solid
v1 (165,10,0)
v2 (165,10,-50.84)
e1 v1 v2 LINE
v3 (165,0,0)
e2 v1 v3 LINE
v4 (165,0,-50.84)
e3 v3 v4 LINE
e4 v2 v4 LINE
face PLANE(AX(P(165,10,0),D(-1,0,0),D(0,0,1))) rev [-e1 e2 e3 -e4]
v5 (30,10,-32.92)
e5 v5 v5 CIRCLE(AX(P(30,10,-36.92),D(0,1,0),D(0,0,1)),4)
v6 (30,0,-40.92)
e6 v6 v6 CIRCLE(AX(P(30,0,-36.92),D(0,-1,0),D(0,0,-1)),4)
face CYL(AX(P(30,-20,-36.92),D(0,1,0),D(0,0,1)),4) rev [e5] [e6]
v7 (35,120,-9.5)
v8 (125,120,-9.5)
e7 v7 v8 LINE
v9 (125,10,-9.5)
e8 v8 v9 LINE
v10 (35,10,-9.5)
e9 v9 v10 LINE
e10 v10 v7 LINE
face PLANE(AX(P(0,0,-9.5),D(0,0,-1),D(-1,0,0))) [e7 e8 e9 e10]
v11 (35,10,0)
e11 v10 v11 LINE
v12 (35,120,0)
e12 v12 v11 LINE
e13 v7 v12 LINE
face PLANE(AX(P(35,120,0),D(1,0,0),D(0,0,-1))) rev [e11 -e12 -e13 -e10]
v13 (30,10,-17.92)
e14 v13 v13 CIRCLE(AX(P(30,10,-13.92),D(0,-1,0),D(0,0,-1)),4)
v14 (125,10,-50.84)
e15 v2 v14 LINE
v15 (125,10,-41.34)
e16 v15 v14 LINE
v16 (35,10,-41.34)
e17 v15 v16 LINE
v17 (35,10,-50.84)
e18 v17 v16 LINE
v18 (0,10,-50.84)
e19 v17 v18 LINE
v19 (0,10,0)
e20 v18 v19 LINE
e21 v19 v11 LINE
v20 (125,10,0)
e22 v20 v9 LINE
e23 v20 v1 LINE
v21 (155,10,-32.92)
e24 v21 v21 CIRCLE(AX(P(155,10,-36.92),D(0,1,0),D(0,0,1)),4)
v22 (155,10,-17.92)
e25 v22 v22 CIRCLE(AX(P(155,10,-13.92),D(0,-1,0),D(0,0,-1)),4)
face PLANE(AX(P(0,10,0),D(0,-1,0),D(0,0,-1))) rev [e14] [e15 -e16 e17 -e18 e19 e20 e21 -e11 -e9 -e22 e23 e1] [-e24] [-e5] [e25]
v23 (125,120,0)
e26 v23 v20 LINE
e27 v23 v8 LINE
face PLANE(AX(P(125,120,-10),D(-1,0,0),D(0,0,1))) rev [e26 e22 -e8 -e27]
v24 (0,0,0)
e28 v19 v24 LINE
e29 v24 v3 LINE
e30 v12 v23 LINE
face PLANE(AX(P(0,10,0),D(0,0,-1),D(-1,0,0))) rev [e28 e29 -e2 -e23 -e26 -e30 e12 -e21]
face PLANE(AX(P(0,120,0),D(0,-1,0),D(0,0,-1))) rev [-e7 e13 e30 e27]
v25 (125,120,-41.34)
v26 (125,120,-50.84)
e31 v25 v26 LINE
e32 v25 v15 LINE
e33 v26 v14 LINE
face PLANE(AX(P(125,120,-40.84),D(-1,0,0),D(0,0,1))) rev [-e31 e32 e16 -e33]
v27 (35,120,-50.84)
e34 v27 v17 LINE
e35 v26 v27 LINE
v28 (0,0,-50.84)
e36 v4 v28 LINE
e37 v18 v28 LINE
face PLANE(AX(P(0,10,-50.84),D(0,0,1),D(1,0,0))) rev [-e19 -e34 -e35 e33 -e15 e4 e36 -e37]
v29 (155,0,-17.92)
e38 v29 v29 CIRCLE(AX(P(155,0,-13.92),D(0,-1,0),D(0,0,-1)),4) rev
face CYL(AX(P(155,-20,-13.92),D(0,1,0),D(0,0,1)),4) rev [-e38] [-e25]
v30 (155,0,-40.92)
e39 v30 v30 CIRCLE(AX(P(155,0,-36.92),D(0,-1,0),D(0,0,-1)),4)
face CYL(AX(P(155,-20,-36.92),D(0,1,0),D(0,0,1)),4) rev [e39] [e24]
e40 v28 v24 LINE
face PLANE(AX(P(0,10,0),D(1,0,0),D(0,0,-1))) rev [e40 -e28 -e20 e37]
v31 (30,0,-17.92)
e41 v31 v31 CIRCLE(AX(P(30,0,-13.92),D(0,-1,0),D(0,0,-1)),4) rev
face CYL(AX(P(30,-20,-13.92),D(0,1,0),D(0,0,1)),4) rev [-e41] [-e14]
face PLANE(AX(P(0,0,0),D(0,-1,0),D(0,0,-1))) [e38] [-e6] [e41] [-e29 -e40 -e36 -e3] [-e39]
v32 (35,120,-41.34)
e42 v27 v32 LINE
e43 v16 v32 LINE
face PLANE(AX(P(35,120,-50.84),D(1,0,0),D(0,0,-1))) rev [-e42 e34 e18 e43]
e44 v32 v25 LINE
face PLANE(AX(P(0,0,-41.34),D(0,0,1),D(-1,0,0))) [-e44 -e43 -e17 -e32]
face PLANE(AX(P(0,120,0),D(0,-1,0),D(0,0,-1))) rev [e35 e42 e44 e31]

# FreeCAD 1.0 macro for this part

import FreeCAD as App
import Part
import Sketcher


def add_polygon(sketch, points):
    """Adds a closed chain of lines whose ends are joined by coincident constraints."""
    first, n = sketch.GeometryCount, len(points)
    for a, b in zip(points, points[1:] + points[:1]):
        sketch.addGeometry(Part.LineSegment(App.Vector(*a, 0), App.Vector(*b, 0)), False)
    for i in range(n):
        sketch.addConstraint(Sketcher.Constraint("Coincident", first + i, 2, first + (i + 1) % n, 1))

doc = App.newDocument("Part")
body = doc.addObject("PartDesign::Body", "Body")

# Sketch on XZ plane
sketch1 = body.newObject("Sketcher::SketchObject", "Sketch")
sketch1.AttachmentSupport = (doc.getObject("XZ_Plane"), [""])
sketch1.MapMode = "FlatFace"
add_polygon(sketch1, [(0, -51), (0, 0), (165, 0), (165, -51)])  # lines 0-3
sketch1.addConstraint(Sketcher.Constraint("Vertical", 0))
sketch1.addConstraint(Sketcher.Constraint("Horizontal", 1))
sketch1.addConstraint(Sketcher.Constraint("Vertical", 2))
sketch1.addConstraint(Sketcher.Constraint("Horizontal", 3))
sketch1.addConstraint(Sketcher.Constraint("Coincident", 0, 2, -1, 1))
sketch1.addConstraint(Sketcher.Constraint("DistanceX", 1, 1, 1, 2, 165.0))
sketch1.addConstraint(Sketcher.Constraint("DistanceY", 0, 1, 0, 2, 50.84))
pad1 = body.newObject("PartDesign::Pad", "Pad")
pad1.Profile = sketch1
pad1.Length = 10
pad1.Reversed = True

# Sketch on XZ plane
sketch2 = body.newObject("Sketcher::SketchObject", "Sketch001")
sketch2.AttachmentSupport = (doc.getObject("XZ_Plane"), [""])
sketch2.MapMode = "FlatFace"
sketch2.AttachmentOffset = App.Placement(App.Vector(0, 0, -10), App.Rotation())
add_polygon(sketch2, [(35, -51), (35, -41), (125, -41), (125, -51)])  # lines 0-3
add_polygon(sketch2, [(35, -10), (35, 0), (125, 0), (125, -10)])  # lines 4-7
sketch2.addConstraint(Sketcher.Constraint("Vertical", 0))
sketch2.addConstraint(Sketcher.Constraint("Horizontal", 1))
sketch2.addConstraint(Sketcher.Constraint("Vertical", 2))
sketch2.addConstraint(Sketcher.Constraint("Horizontal", 3))
sketch2.addConstraint(Sketcher.Constraint("Vertical", 4))
sketch2.addConstraint(Sketcher.Constraint("Horizontal", 5))
sketch2.addConstraint(Sketcher.Constraint("Vertical", 6))
sketch2.addConstraint(Sketcher.Constraint("Horizontal", 7))
sketch2.addConstraint(Sketcher.Constraint("PointOnObject", 4, 2, -1))
sketch2.addConstraint(Sketcher.Constraint("Vertical", 3, 2, 4, 2))
sketch2.addConstraint(Sketcher.Constraint("Vertical", 2, 2, 5, 2))
sketch2.addConstraint(Sketcher.Constraint("Equal", 2, 4))
sketch2.addConstraint(Sketcher.Constraint("DistanceX", 1, 1, 1, 2, 90.0))
sketch2.addConstraint(Sketcher.Constraint("DistanceY", 0, 1, 0, 2, 10.0))
sketch2.addConstraint(Sketcher.Constraint("DistanceX", -1, 1, 0, 2, 35.0))
sketch2.addConstraint(Sketcher.Constraint("DistanceY", 0, 2, -1, 1, 40.84))
pad2 = body.newObject("PartDesign::Pad", "Pad001")
pad2.Profile = sketch2
pad2.Length = 110
pad2.Reversed = True

# Sketch on XZ plane
sketch3 = body.newObject("Sketcher::SketchObject", "Sketch002")
sketch3.AttachmentSupport = (doc.getObject("XZ_Plane"), [""])
sketch3.MapMode = "FlatFace"
sketch3.AttachmentOffset = App.Placement(App.Vector(0, 0, -10), App.Rotation())
sketch3.addGeometry(Part.Circle(App.Vector(30, -36.9, 0), App.Vector(0, 0, 1), 4), False)
sketch3.addGeometry(Part.Circle(App.Vector(155, -36.9, 0), App.Vector(0, 0, 1), 4), False)
sketch3.addConstraint(Sketcher.Constraint("Equal", 0, 1))
sketch3.addConstraint(Sketcher.Constraint("Horizontal", 0, 3, 1, 3))
sketch3.addConstraint(Sketcher.Constraint("Diameter", 0, 8.0))
sketch3.addConstraint(Sketcher.Constraint("DistanceX", -1, 1, 0, 3, 30.0))
sketch3.addConstraint(Sketcher.Constraint("DistanceX", -1, 1, 1, 3, 155.0))
sketch3.addConstraint(Sketcher.Constraint("DistanceY", 0, 3, -1, 1, 36.92))
pocket1 = body.newObject("PartDesign::Pocket", "Pocket")
pocket1.Profile = sketch3
pocket1.Length = 30
pocket1.Reversed = True
doc.recompute()

datumplane = body.newObject("PartDesign::Plane", "DatumPlane")
datumplane.AttachmentSupport = (doc.getObject("XY_Plane"), [""])
datumplane.MapMode = "FlatFace"
datumplane.AttachmentOffset = App.Placement(App.Vector(0, 0, -25.42), App.Rotation())
mirrored = body.newObject("PartDesign::Mirrored", "Mirrored")
mirrored.Originals = [pocket1]
mirrored.MirrorPlane = (datumplane, [""])
body.Tip = mirrored

# Sketch on XY plane
sketch4 = body.newObject("Sketcher::SketchObject", "Sketch003")
sketch4.AttachmentSupport = (doc.getObject("XY_Plane"), [""])
sketch4.MapMode = "FlatFace"
sketch4.AttachmentOffset = App.Placement(App.Vector(0, 0, -10), App.Rotation())
add_polygon(sketch4, [(125, 120), (125, 10), (35, 10), (35, 120)])  # lines 0-3
sketch4.addConstraint(Sketcher.Constraint("Vertical", 0))
sketch4.addConstraint(Sketcher.Constraint("Horizontal", 1))
sketch4.addConstraint(Sketcher.Constraint("Vertical", 2))
sketch4.addConstraint(Sketcher.Constraint("Horizontal", 3))
sketch4.addConstraint(Sketcher.Constraint("DistanceX", 1, 2, 1, 1, 90.0))
sketch4.addConstraint(Sketcher.Constraint("DistanceY", 0, 2, 0, 1, 110.0))
sketch4.addConstraint(Sketcher.Constraint("DistanceX", -1, 1, 0, 2, 125.0))
sketch4.addConstraint(Sketcher.Constraint("DistanceY", -1, 1, 0, 2, 10.0))
pocket2 = body.newObject("PartDesign::Pocket", "Pocket001")
pocket2.Profile = sketch4
pocket2.Length = 0.5
pocket2.Reversed = True
doc.recompute()

datumplane2 = body.newObject("PartDesign::Plane", "DatumPlane001")
datumplane2.AttachmentSupport = (doc.getObject("XY_Plane"), [""])
datumplane2.MapMode = "FlatFace"
datumplane2.AttachmentOffset = App.Placement(App.Vector(0, 0, -25.42), App.Rotation())
mirrored2 = body.newObject("PartDesign::Mirrored", "Mirrored001")
mirrored2.Originals = [pocket2]
mirrored2.MirrorPlane = (datumplane2, [""])
body.Tip = mirrored2

doc.recompute()
